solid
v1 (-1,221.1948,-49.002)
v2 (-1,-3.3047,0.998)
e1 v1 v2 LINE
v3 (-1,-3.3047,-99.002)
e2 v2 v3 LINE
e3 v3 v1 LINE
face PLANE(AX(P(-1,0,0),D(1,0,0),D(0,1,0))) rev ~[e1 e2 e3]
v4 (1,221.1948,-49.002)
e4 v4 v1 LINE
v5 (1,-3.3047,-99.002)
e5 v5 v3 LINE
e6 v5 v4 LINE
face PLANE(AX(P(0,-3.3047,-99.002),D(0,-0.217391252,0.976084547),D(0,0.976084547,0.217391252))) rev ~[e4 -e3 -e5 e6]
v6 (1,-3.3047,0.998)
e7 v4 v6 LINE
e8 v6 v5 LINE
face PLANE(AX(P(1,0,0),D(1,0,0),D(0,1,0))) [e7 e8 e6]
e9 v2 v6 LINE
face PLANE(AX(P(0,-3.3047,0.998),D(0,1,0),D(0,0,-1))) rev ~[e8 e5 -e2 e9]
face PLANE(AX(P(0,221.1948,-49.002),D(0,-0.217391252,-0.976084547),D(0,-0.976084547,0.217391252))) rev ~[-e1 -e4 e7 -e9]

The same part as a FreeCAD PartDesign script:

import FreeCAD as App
import Part
import Sketcher
from FreeCAD import Vector
Q = App.Units.Quantity


def add_polygon(sketch, points):
    """Adds a closed chain of lines whose ends are joined by coincident constraints."""
    first, n = sketch.GeometryCount, len(points)
    for a, b in zip(points, points[1:] + points[:1]):
        sketch.addGeometry(Part.LineSegment(App.Vector(*a, 0), App.Vector(*b, 0)), False)
    for i in range(n):
        sketch.addConstraint(Sketcher.Constraint("Coincident", first + i, 2, first + (i + 1) % n, 1))

doc = App.newDocument("Part")
body = doc.addObject("PartDesign::Body", "Body")

sketch1 = body.newObject("Sketcher::SketchObject", "Sketch")
sketch1.AttachmentSupport = (doc.getObject("YZ_Plane"), [""])
sketch1.MapMode = "FlatFace"
add_polygon(sketch1, [(221.1948, -49.002), (-3.3047, 0.998), (-3.3047, -99.002)])
sketch1.addConstraint([
    Sketcher.Constraint("Vertical", 1),
    Sketcher.Constraint("Equal", 0, 2),
    Sketcher.Constraint("DistanceY", 1, 2, 1, 1, Q("100 mm")),
    Sketcher.Constraint("Distance", 0, Q("230 mm")),
    Sketcher.Constraint("DistanceY", -1, 1, 0, 2, Q("0.998 mm")),
    Sketcher.Constraint("DistanceX", 0, 2, -1, 1, Q("3.3047 mm")),
])
pad1 = body.newObject("PartDesign::Pad", "Pad")
pad1.Profile = sketch1
pad1.Length = 2
pad1.Midplane = True

doc.recompute()
